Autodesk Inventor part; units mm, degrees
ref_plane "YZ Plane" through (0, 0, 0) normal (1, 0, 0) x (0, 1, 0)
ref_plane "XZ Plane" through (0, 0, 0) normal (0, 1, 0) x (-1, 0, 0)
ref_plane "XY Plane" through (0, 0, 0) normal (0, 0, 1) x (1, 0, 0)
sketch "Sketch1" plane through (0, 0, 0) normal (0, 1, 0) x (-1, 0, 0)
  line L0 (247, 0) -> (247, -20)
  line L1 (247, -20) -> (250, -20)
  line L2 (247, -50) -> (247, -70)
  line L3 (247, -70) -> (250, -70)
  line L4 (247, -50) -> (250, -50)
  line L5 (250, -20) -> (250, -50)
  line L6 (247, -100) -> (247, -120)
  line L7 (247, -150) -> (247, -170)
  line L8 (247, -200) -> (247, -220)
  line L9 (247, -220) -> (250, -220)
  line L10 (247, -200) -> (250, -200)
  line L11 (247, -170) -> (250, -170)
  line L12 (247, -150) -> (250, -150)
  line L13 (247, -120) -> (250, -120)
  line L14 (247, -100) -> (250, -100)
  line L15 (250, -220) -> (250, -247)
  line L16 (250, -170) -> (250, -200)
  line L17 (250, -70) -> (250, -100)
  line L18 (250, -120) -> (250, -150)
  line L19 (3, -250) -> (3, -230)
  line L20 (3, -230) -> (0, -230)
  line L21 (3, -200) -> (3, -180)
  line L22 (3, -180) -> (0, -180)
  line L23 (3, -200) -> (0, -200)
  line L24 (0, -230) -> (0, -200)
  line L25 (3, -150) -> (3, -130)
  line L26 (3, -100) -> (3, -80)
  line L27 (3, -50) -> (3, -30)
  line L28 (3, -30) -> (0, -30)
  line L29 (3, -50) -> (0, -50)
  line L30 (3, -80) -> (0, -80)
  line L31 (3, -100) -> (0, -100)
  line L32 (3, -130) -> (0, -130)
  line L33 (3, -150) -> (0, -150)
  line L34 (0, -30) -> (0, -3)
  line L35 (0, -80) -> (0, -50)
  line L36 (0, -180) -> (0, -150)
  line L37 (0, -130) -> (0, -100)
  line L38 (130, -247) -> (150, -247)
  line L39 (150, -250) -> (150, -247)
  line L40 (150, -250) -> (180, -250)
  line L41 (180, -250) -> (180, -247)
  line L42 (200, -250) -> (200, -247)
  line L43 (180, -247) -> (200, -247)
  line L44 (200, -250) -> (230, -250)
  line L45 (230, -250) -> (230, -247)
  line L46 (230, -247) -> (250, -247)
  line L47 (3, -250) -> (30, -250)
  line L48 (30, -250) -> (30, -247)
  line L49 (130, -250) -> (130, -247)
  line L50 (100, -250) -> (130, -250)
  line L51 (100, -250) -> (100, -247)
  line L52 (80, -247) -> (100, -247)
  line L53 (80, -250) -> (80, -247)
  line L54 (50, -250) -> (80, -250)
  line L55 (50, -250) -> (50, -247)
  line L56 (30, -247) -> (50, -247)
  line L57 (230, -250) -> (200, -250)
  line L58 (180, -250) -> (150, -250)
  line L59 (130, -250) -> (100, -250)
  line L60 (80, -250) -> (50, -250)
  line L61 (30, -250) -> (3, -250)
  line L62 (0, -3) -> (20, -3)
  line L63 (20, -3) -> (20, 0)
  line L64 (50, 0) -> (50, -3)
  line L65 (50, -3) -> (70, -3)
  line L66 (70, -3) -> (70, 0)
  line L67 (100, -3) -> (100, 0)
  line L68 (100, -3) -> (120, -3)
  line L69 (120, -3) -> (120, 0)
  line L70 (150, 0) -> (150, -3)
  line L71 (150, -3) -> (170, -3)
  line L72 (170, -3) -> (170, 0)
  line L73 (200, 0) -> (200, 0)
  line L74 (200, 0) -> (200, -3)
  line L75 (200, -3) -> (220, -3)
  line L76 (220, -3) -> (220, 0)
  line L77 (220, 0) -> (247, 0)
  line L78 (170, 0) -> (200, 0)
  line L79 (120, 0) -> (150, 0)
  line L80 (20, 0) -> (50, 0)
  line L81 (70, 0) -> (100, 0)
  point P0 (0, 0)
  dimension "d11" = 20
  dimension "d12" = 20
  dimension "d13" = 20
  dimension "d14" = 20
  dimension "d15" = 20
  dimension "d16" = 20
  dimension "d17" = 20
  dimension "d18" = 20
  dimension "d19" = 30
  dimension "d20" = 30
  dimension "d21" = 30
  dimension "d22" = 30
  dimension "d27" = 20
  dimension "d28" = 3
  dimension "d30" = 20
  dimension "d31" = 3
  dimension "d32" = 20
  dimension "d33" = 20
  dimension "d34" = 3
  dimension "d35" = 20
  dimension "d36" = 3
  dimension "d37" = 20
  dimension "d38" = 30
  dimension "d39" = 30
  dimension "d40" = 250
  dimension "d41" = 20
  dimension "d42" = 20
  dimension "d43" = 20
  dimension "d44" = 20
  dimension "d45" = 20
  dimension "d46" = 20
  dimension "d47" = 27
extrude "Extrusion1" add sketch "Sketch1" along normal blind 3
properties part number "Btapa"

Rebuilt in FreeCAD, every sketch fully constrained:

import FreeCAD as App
import Part
import Sketcher
from FreeCAD import Vector
Q = App.Units.Quantity

doc = App.newDocument("Part")
body = doc.addObject("PartDesign::Body", "Body")

sketch1 = body.newObject("Sketcher::SketchObject", "Sketch")
sketch1.AttachmentSupport = (doc.getObject("XZ_Plane"), [""])
sketch1.MapMode = "FlatFace"
sketch1.addGeometry([
    Part.LineSegment(Vector(-247, -20, 0), Vector(-247, 0, 0)),
    Part.LineSegment(Vector(-247, 0, 0), Vector(-220, 0, 0)),
    Part.LineSegment(Vector(-220, 0, 0), Vector(-220, -3, 0)),
    Part.LineSegment(Vector(-220, -3, 0), Vector(-200, -3, 0)),
    Part.LineSegment(Vector(-200, -3, 0), Vector(-200, 0, 0)),
    Part.LineSegment(Vector(-200, 0, 0), Vector(-170, 0, 0)),
    Part.LineSegment(Vector(-170, 0, 0), Vector(-170, -3, 0)),
    Part.LineSegment(Vector(-170, -3, 0), Vector(-150, -3, 0)),
    Part.LineSegment(Vector(-150, -3, 0), Vector(-150, 0, 0)),
    Part.LineSegment(Vector(-150, 0, 0), Vector(-120, 0, 0)),
    Part.LineSegment(Vector(-120, 0, 0), Vector(-120, -3, 0)),
    Part.LineSegment(Vector(-120, -3, 0), Vector(-100, -3, 0)),
    Part.LineSegment(Vector(-100, -3, 0), Vector(-100, 0, 0)),
    Part.LineSegment(Vector(-100, 0, 0), Vector(-70, 0, 0)),
    Part.LineSegment(Vector(-70, 0, 0), Vector(-70, -3, 0)),
    Part.LineSegment(Vector(-70, -3, 0), Vector(-50, -3, 0)),
    Part.LineSegment(Vector(-50, -3, 0), Vector(-50, 0, 0)),
    Part.LineSegment(Vector(-50, 0, 0), Vector(-20, 0, 0)),
    Part.LineSegment(Vector(-20, 0, 0), Vector(-20, -3, 0)),
    Part.LineSegment(Vector(-20, -3, 0), Vector(0, -3, 0)),
    Part.LineSegment(Vector(0, -3, 0), Vector(0, -30, 0)),
    Part.LineSegment(Vector(0, -30, 0), Vector(-3, -30, 0)),
    Part.LineSegment(Vector(-3, -30, 0), Vector(-3, -50, 0)),
    Part.LineSegment(Vector(-3, -50, 0), Vector(0, -50, 0)),
    Part.LineSegment(Vector(0, -50, 0), Vector(0, -80, 0)),
    Part.LineSegment(Vector(0, -80, 0), Vector(-3, -80, 0)),
    Part.LineSegment(Vector(-3, -80, 0), Vector(-3, -100, 0)),
    Part.LineSegment(Vector(-3, -100, 0), Vector(0, -100, 0)),
    Part.LineSegment(Vector(0, -100, 0), Vector(0, -130, 0)),
    Part.LineSegment(Vector(0, -130, 0), Vector(-3, -130, 0)),
    Part.LineSegment(Vector(-3, -130, 0), Vector(-3, -150, 0)),
    Part.LineSegment(Vector(-3, -150, 0), Vector(0, -150, 0)),
    Part.LineSegment(Vector(0, -150, 0), Vector(0, -180, 0)),
    Part.LineSegment(Vector(0, -180, 0), Vector(-3, -180, 0)),
    Part.LineSegment(Vector(-3, -180, 0), Vector(-3, -200, 0)),
    Part.LineSegment(Vector(-3, -200, 0), Vector(0, -200, 0)),
    Part.LineSegment(Vector(0, -200, 0), Vector(0, -230, 0)),
    Part.LineSegment(Vector(0, -230, 0), Vector(-3, -230, 0)),
    Part.LineSegment(Vector(-3, -230, 0), Vector(-3, -250, 0)),
    Part.LineSegment(Vector(-3, -250, 0), Vector(-30, -250, 0)),
    Part.LineSegment(Vector(-30, -250, 0), Vector(-30, -247, 0)),
    Part.LineSegment(Vector(-30, -247, 0), Vector(-50, -247, 0)),
    Part.LineSegment(Vector(-50, -247, 0), Vector(-50, -250, 0)),
    Part.LineSegment(Vector(-50, -250, 0), Vector(-80, -250, 0)),
    Part.LineSegment(Vector(-80, -250, 0), Vector(-80, -247, 0)),
    Part.LineSegment(Vector(-80, -247, 0), Vector(-100, -247, 0)),
    Part.LineSegment(Vector(-100, -247, 0), Vector(-100, -250, 0)),
    Part.LineSegment(Vector(-100, -250, 0), Vector(-130, -250, 0)),
    Part.LineSegment(Vector(-130, -250, 0), Vector(-130, -247, 0)),
    Part.LineSegment(Vector(-130, -247, 0), Vector(-150, -247, 0)),
    Part.LineSegment(Vector(-150, -247, 0), Vector(-150, -250, 0)),
    Part.LineSegment(Vector(-150, -250, 0), Vector(-180, -250, 0)),
    Part.LineSegment(Vector(-180, -250, 0), Vector(-180, -247, 0)),
    Part.LineSegment(Vector(-180, -247, 0), Vector(-200, -247, 0)),
    Part.LineSegment(Vector(-200, -247, 0), Vector(-200, -250, 0)),
    Part.LineSegment(Vector(-200, -250, 0), Vector(-230, -250, 0)),
    Part.LineSegment(Vector(-230, -250, 0), Vector(-230, -247, 0)),
    Part.LineSegment(Vector(-230, -247, 0), Vector(-250, -247, 0)),
    Part.LineSegment(Vector(-250, -247, 0), Vector(-250, -220, 0)),
    Part.LineSegment(Vector(-250, -220, 0), Vector(-247, -220, 0)),
    Part.LineSegment(Vector(-247, -220, 0), Vector(-247, -200, 0)),
    Part.LineSegment(Vector(-247, -200, 0), Vector(-250, -200, 0)),
    Part.LineSegment(Vector(-250, -200, 0), Vector(-250, -170, 0)),
    Part.LineSegment(Vector(-250, -170, 0), Vector(-247, -170, 0)),
    Part.LineSegment(Vector(-247, -170, 0), Vector(-247, -150, 0)),
    Part.LineSegment(Vector(-247, -150, 0), Vector(-250, -150, 0)),
    Part.LineSegment(Vector(-250, -150, 0), Vector(-250, -120, 0)),
    Part.LineSegment(Vector(-250, -120, 0), Vector(-247, -120, 0)),
    Part.LineSegment(Vector(-247, -120, 0), Vector(-247, -100, 0)),
    Part.LineSegment(Vector(-247, -100, 0), Vector(-250, -100, 0)),
    Part.LineSegment(Vector(-250, -100, 0), Vector(-250, -70, 0)),
    Part.LineSegment(Vector(-250, -70, 0), Vector(-247, -70, 0)),
    Part.LineSegment(Vector(-247, -70, 0), Vector(-247, -50, 0)),
    Part.LineSegment(Vector(-247, -50, 0), Vector(-250, -50, 0)),
    Part.LineSegment(Vector(-250, -50, 0), Vector(-250, -20, 0)),
    Part.LineSegment(Vector(-250, -20, 0), Vector(-247, -20, 0)),
], False)
sketch1.addConstraint([
    Sketcher.Constraint("Coincident", 0, 2, 1, 1),
    Sketcher.Constraint("Coincident", 1, 2, 2, 1),
    Sketcher.Constraint("Coincident", 2, 2, 3, 1),
    Sketcher.Constraint("Coincident", 3, 2, 4, 1),
    Sketcher.Constraint("Coincident", 4, 2, 5, 1),
    Sketcher.Constraint("Coincident", 5, 2, 6, 1),
    Sketcher.Constraint("Coincident", 6, 2, 7, 1),
    Sketcher.Constraint("Coincident", 7, 2, 8, 1),
    Sketcher.Constraint("Coincident", 8, 2, 9, 1),
    Sketcher.Constraint("Coincident", 9, 2, 10, 1),
    Sketcher.Constraint("Coincident", 10, 2, 11, 1),
    Sketcher.Constraint("Coincident", 11, 2, 12, 1),
    Sketcher.Constraint("Coincident", 12, 2, 13, 1),
    Sketcher.Constraint("Coincident", 13, 2, 14, 1),
    Sketcher.Constraint("Coincident", 14, 2, 15, 1),
    Sketcher.Constraint("Coincident", 15, 2, 16, 1),
    Sketcher.Constraint("Coincident", 16, 2, 17, 1),
    Sketcher.Constraint("Coincident", 17, 2, 18, 1),
    Sketcher.Constraint("Coincident", 18, 2, 19, 1),
    Sketcher.Constraint("Coincident", 19, 2, 20, 1),
    Sketcher.Constraint("Coincident", 20, 2, 21, 1),
    Sketcher.Constraint("Coincident", 21, 2, 22, 1),
    Sketcher.Constraint("Coincident", 22, 2, 23, 1),
    Sketcher.Constraint("Coincident", 23, 2, 24, 1),
    Sketcher.Constraint("Coincident", 24, 2, 25, 1),
    Sketcher.Constraint("Coincident", 25, 2, 26, 1),
    Sketcher.Constraint("Coincident", 26, 2, 27, 1),
    Sketcher.Constraint("Coincident", 27, 2, 28, 1),
    Sketcher.Constraint("Coincident", 28, 2, 29, 1),
    Sketcher.Constraint("Coincident", 29, 2, 30, 1),
    Sketcher.Constraint("Coincident", 30, 2, 31, 1),
    Sketcher.Constraint("Coincident", 31, 2, 32, 1),
    Sketcher.Constraint("Coincident", 32, 2, 33, 1),
    Sketcher.Constraint("Coincident", 33, 2, 34, 1),
    Sketcher.Constraint("Coincident", 34, 2, 35, 1),
    Sketcher.Constraint("Coincident", 35, 2, 36, 1),
    Sketcher.Constraint("Coincident", 36, 2, 37, 1),
    Sketcher.Constraint("Coincident", 37, 2, 38, 1),
    Sketcher.Constraint("Coincident", 38, 2, 39, 1),
    Sketcher.Constraint("Coincident", 39, 2, 40, 1),
    Sketcher.Constraint("Coincident", 40, 2, 41, 1),
    Sketcher.Constraint("Coincident", 41, 2, 42, 1),
    Sketcher.Constraint("Coincident", 42, 2, 43, 1),
    Sketcher.Constraint("Coincident", 43, 2, 44, 1),
    Sketcher.Constraint("Coincident", 44, 2, 45, 1),
    Sketcher.Constraint("Coincident", 45, 2, 46, 1),
    Sketcher.Constraint("Coincident", 46, 2, 47, 1),
    Sketcher.Constraint("Coincident", 47, 2, 48, 1),
    Sketcher.Constraint("Coincident", 48, 2, 49, 1),
    Sketcher.Constraint("Coincident", 49, 2, 50, 1),
    Sketcher.Constraint("Coincident", 50, 2, 51, 1),
    Sketcher.Constraint("Coincident", 51, 2, 52, 1),
    Sketcher.Constraint("Coincident", 52, 2, 53, 1),
    Sketcher.Constraint("Coincident", 53, 2, 54, 1),
    Sketcher.Constraint("Coincident", 54, 2, 55, 1),
    Sketcher.Constraint("Coincident", 55, 2, 56, 1),
    Sketcher.Constraint("Coincident", 56, 2, 57, 1),
    Sketcher.Constraint("Coincident", 57, 2, 58, 1),
    Sketcher.Constraint("Coincident", 58, 2, 59, 1),
    Sketcher.Constraint("Coincident", 59, 2, 60, 1),
    Sketcher.Constraint("Coincident", 60, 2, 61, 1),
    Sketcher.Constraint("Coincident", 61, 2, 62, 1),
    Sketcher.Constraint("Coincident", 62, 2, 63, 1),
    Sketcher.Constraint("Coincident", 63, 2, 64, 1),
    Sketcher.Constraint("Coincident", 64, 2, 65, 1),
    Sketcher.Constraint("Coincident", 65, 2, 66, 1),
    Sketcher.Constraint("Coincident", 66, 2, 67, 1),
    Sketcher.Constraint("Coincident", 67, 2, 68, 1),
    Sketcher.Constraint("Coincident", 68, 2, 69, 1),
    Sketcher.Constraint("Coincident", 69, 2, 70, 1),
    Sketcher.Constraint("Coincident", 70, 2, 71, 1),
    Sketcher.Constraint("Coincident", 71, 2, 72, 1),
    Sketcher.Constraint("Coincident", 72, 2, 73, 1),
    Sketcher.Constraint("Coincident", 73, 2, 74, 1),
    Sketcher.Constraint("Coincident", 74, 2, 75, 1),
    Sketcher.Constraint("Coincident", 75, 2, 0, 1),
    Sketcher.Constraint("Vertical", 0),
    Sketcher.Constraint("Horizontal", 1),
    Sketcher.Constraint("Vertical", 2),
    Sketcher.Constraint("Horizontal", 3),
    Sketcher.Constraint("Vertical", 4),
    Sketcher.Constraint("Horizontal", 5),
    Sketcher.Constraint("Vertical", 6),
    Sketcher.Constraint("Horizontal", 7),
    Sketcher.Constraint("Vertical", 8),
    Sketcher.Constraint("Horizontal", 9),
    Sketcher.Constraint("Vertical", 10),
    Sketcher.Constraint("Horizontal", 11),
    Sketcher.Constraint("Vertical", 12),
    Sketcher.Constraint("Horizontal", 13),
    Sketcher.Constraint("Vertical", 14),
    Sketcher.Constraint("Horizontal", 15),
    Sketcher.Constraint("Vertical", 16),
    Sketcher.Constraint("Horizontal", 17),
    Sketcher.Constraint("Vertical", 18),
    Sketcher.Constraint("Horizontal", 19),
    Sketcher.Constraint("Vertical", 20),
    Sketcher.Constraint("Horizontal", 21),
    Sketcher.Constraint("Vertical", 22),
    Sketcher.Constraint("Horizontal", 23),
    Sketcher.Constraint("Vertical", 24),
    Sketcher.Constraint("Horizontal", 25),
    Sketcher.Constraint("Vertical", 26),
    Sketcher.Constraint("Horizontal", 27),
    Sketcher.Constraint("Vertical", 28),
    Sketcher.Constraint("Horizontal", 29),
    Sketcher.Constraint("Vertical", 30),
    Sketcher.Constraint("Horizontal", 31),
    Sketcher.Constraint("Vertical", 32),
    Sketcher.Constraint("Horizontal", 33),
    Sketcher.Constraint("Vertical", 34),
    Sketcher.Constraint("Horizontal", 35),
    Sketcher.Constraint("Vertical", 36),
    Sketcher.Constraint("Horizontal", 37),
    Sketcher.Constraint("Vertical", 38),
    Sketcher.Constraint("Horizontal", 39),
    Sketcher.Constraint("Vertical", 40),
    Sketcher.Constraint("Horizontal", 41),
    Sketcher.Constraint("Vertical", 42),
    Sketcher.Constraint("Horizontal", 43),
    Sketcher.Constraint("Vertical", 44),
    Sketcher.Constraint("Horizontal", 45),
    Sketcher.Constraint("Vertical", 46),
    Sketcher.Constraint("Horizontal", 47),
    Sketcher.Constraint("Vertical", 48),
    Sketcher.Constraint("Horizontal", 49),
    Sketcher.Constraint("Vertical", 50),
    Sketcher.Constraint("Horizontal", 51),
    Sketcher.Constraint("Vertical", 52),
    Sketcher.Constraint("Horizontal", 53),
    Sketcher.Constraint("Vertical", 54),
    Sketcher.Constraint("Horizontal", 55),
    Sketcher.Constraint("Vertical", 56),
    Sketcher.Constraint("Horizontal", 57),
    Sketcher.Constraint("Vertical", 58),
    Sketcher.Constraint("Horizontal", 59),
    Sketcher.Constraint("Vertical", 60),
    Sketcher.Constraint("Horizontal", 61),
    Sketcher.Constraint("Vertical", 62),
    Sketcher.Constraint("Horizontal", 63),
    Sketcher.Constraint("Vertical", 64),
    Sketcher.Constraint("Horizontal", 65),
    Sketcher.Constraint("Vertical", 66),
    Sketcher.Constraint("Horizontal", 67),
    Sketcher.Constraint("Vertical", 68),
    Sketcher.Constraint("Horizontal", 69),
    Sketcher.Constraint("Vertical", 70),
    Sketcher.Constraint("Horizontal", 71),
    Sketcher.Constraint("Vertical", 72),
    Sketcher.Constraint("Horizontal", 73),
    Sketcher.Constraint("Vertical", 74),
    Sketcher.Constraint("Horizontal", 75),
    Sketcher.Constraint("PointOnObject", 0, 2, -1),
    Sketcher.Constraint("PointOnObject", 4, 2, -1),
    Sketcher.Constraint("PointOnObject", 8, 2, -1),
    Sketcher.Constraint("PointOnObject", 12, 2, -1),
    Sketcher.Constraint("PointOnObject", 16, 2, -1),
    Sketcher.Constraint("PointOnObject", 19, 2, -2),
    Sketcher.Constraint("PointOnObject", 23, 2, -2),
    Sketcher.Constraint("PointOnObject", 27, 2, -2),
    Sketcher.Constraint("PointOnObject", 31, 2, -2),
    Sketcher.Constraint("PointOnObject", 35, 2, -2),
    Sketcher.Constraint("Horizontal", 3, 2, 6, 2),
    Sketcher.Constraint("Horizontal", 7, 2, 10, 2),
    Sketcher.Constraint("Horizontal", 11, 2, 14, 2),
    Sketcher.Constraint("Horizontal", 15, 2, 18, 2),
    Sketcher.Constraint("Horizontal", 39, 2, 42, 2),
    Sketcher.Constraint("Horizontal", 41, 2, 44, 2),
    Sketcher.Constraint("Horizontal", 43, 2, 46, 2),
    Sketcher.Constraint("Horizontal", 45, 2, 48, 2),
    Sketcher.Constraint("Horizontal", 47, 2, 50, 2),
    Sketcher.Constraint("Horizontal", 49, 2, 52, 2),
    Sketcher.Constraint("Horizontal", 51, 2, 54, 2),
    Sketcher.Constraint("Horizontal", 53, 2, 56, 2),
    Sketcher.Constraint("Horizontal", 35, 2, 60, 2),
    Sketcher.Constraint("Horizontal", 31, 2, 64, 2),
    Sketcher.Constraint("Horizontal", 27, 2, 68, 2),
    Sketcher.Constraint("Horizontal", 23, 2, 72, 2),
    Sketcher.Constraint("Vertical", 22, 2, 25, 2),
    Sketcher.Constraint("Vertical", 26, 2, 29, 2),
    Sketcher.Constraint("Vertical", 30, 2, 33, 2),
    Sketcher.Constraint("Vertical", 34, 2, 37, 2),
    Sketcher.Constraint("Vertical", 16, 2, 41, 2),
    Sketcher.Constraint("Vertical", 12, 2, 45, 2),
    Sketcher.Constraint("Vertical", 8, 2, 49, 2),
    Sketcher.Constraint("Vertical", 4, 2, 53, 2),
    Sketcher.Constraint("Vertical", 0, 2, 59, 2),
    Sketcher.Constraint("Vertical", 58, 2, 61, 2),
    Sketcher.Constraint("Vertical", 60, 2, 63, 2),
    Sketcher.Constraint("Vertical", 62, 2, 65, 2),
    Sketcher.Constraint("Vertical", 64, 2, 67, 2),
    Sketcher.Constraint("Vertical", 66, 2, 69, 2),
    Sketcher.Constraint("Vertical", 68, 2, 71, 2),
    Sketcher.Constraint("Vertical", 70, 2, 73, 2),
    Sketcher.Constraint("Equal", 3, 7),
    Sketcher.Constraint("Equal", 5, 9),
    Sketcher.Constraint("Equal", 7, 11),
    Sketcher.Constraint("Equal", 9, 13),
    Sketcher.Constraint("Equal", 11, 15),
    Sketcher.Constraint("Equal", 13, 17),
    Sketcher.Constraint("Equal", 15, 19),
    Sketcher.Constraint("Equal", 1, 39),
    Sketcher.Constraint("Equal", 19, 41),
    Sketcher.Constraint("Equal", 17, 43),
    Sketcher.Constraint("Equal", 43, 47),
    Sketcher.Constraint("Equal", 47, 51),
    Sketcher.Constraint("Equal", 51, 55),
    Sketcher.Constraint("Equal", 53, 57),
    Sketcher.Constraint("Equal", 57, 0),
    Sketcher.Constraint("Equal", 75, 2),
    Sketcher.Constraint("Equal", 39, 20),
    Sketcher.Constraint("Equal", 0, 22),
    Sketcher.Constraint("Equal", 55, 24),
    Sketcher.Constraint("Equal", 22, 26),
    Sketcher.Constraint("Equal", 24, 28),
    Sketcher.Constraint("Equal", 26, 30),
    Sketcher.Constraint("Equal", 28, 32),
    Sketcher.Constraint("Equal", 30, 34),
    Sketcher.Constraint("Equal", 32, 36),
    Sketcher.Constraint("Equal", 34, 38),
    Sketcher.Constraint("Equal", 18, 40),
    Sketcher.Constraint("Equal", 20, 58),
    Sketcher.Constraint("Equal", 36, 62),
    Sketcher.Constraint("Equal", 62, 66),
    Sketcher.Constraint("Equal", 66, 70),
    Sketcher.Constraint("DistanceX", 1, 1, 1, 2, Q("1.063 in")),
    Sketcher.Constraint("DistanceX", 3, 1, 3, 2, Q("0.7874 in")),
    Sketcher.Constraint("DistanceX", 5, 1, 5, 2, Q("1.1811 in")),
])
pad1 = body.newObject("PartDesign::Pad", "Pad")
pad1.Profile = sketch1
pad1.Length = Q("0.1181102 in")
pad1.Reversed = True

doc.recompute()
